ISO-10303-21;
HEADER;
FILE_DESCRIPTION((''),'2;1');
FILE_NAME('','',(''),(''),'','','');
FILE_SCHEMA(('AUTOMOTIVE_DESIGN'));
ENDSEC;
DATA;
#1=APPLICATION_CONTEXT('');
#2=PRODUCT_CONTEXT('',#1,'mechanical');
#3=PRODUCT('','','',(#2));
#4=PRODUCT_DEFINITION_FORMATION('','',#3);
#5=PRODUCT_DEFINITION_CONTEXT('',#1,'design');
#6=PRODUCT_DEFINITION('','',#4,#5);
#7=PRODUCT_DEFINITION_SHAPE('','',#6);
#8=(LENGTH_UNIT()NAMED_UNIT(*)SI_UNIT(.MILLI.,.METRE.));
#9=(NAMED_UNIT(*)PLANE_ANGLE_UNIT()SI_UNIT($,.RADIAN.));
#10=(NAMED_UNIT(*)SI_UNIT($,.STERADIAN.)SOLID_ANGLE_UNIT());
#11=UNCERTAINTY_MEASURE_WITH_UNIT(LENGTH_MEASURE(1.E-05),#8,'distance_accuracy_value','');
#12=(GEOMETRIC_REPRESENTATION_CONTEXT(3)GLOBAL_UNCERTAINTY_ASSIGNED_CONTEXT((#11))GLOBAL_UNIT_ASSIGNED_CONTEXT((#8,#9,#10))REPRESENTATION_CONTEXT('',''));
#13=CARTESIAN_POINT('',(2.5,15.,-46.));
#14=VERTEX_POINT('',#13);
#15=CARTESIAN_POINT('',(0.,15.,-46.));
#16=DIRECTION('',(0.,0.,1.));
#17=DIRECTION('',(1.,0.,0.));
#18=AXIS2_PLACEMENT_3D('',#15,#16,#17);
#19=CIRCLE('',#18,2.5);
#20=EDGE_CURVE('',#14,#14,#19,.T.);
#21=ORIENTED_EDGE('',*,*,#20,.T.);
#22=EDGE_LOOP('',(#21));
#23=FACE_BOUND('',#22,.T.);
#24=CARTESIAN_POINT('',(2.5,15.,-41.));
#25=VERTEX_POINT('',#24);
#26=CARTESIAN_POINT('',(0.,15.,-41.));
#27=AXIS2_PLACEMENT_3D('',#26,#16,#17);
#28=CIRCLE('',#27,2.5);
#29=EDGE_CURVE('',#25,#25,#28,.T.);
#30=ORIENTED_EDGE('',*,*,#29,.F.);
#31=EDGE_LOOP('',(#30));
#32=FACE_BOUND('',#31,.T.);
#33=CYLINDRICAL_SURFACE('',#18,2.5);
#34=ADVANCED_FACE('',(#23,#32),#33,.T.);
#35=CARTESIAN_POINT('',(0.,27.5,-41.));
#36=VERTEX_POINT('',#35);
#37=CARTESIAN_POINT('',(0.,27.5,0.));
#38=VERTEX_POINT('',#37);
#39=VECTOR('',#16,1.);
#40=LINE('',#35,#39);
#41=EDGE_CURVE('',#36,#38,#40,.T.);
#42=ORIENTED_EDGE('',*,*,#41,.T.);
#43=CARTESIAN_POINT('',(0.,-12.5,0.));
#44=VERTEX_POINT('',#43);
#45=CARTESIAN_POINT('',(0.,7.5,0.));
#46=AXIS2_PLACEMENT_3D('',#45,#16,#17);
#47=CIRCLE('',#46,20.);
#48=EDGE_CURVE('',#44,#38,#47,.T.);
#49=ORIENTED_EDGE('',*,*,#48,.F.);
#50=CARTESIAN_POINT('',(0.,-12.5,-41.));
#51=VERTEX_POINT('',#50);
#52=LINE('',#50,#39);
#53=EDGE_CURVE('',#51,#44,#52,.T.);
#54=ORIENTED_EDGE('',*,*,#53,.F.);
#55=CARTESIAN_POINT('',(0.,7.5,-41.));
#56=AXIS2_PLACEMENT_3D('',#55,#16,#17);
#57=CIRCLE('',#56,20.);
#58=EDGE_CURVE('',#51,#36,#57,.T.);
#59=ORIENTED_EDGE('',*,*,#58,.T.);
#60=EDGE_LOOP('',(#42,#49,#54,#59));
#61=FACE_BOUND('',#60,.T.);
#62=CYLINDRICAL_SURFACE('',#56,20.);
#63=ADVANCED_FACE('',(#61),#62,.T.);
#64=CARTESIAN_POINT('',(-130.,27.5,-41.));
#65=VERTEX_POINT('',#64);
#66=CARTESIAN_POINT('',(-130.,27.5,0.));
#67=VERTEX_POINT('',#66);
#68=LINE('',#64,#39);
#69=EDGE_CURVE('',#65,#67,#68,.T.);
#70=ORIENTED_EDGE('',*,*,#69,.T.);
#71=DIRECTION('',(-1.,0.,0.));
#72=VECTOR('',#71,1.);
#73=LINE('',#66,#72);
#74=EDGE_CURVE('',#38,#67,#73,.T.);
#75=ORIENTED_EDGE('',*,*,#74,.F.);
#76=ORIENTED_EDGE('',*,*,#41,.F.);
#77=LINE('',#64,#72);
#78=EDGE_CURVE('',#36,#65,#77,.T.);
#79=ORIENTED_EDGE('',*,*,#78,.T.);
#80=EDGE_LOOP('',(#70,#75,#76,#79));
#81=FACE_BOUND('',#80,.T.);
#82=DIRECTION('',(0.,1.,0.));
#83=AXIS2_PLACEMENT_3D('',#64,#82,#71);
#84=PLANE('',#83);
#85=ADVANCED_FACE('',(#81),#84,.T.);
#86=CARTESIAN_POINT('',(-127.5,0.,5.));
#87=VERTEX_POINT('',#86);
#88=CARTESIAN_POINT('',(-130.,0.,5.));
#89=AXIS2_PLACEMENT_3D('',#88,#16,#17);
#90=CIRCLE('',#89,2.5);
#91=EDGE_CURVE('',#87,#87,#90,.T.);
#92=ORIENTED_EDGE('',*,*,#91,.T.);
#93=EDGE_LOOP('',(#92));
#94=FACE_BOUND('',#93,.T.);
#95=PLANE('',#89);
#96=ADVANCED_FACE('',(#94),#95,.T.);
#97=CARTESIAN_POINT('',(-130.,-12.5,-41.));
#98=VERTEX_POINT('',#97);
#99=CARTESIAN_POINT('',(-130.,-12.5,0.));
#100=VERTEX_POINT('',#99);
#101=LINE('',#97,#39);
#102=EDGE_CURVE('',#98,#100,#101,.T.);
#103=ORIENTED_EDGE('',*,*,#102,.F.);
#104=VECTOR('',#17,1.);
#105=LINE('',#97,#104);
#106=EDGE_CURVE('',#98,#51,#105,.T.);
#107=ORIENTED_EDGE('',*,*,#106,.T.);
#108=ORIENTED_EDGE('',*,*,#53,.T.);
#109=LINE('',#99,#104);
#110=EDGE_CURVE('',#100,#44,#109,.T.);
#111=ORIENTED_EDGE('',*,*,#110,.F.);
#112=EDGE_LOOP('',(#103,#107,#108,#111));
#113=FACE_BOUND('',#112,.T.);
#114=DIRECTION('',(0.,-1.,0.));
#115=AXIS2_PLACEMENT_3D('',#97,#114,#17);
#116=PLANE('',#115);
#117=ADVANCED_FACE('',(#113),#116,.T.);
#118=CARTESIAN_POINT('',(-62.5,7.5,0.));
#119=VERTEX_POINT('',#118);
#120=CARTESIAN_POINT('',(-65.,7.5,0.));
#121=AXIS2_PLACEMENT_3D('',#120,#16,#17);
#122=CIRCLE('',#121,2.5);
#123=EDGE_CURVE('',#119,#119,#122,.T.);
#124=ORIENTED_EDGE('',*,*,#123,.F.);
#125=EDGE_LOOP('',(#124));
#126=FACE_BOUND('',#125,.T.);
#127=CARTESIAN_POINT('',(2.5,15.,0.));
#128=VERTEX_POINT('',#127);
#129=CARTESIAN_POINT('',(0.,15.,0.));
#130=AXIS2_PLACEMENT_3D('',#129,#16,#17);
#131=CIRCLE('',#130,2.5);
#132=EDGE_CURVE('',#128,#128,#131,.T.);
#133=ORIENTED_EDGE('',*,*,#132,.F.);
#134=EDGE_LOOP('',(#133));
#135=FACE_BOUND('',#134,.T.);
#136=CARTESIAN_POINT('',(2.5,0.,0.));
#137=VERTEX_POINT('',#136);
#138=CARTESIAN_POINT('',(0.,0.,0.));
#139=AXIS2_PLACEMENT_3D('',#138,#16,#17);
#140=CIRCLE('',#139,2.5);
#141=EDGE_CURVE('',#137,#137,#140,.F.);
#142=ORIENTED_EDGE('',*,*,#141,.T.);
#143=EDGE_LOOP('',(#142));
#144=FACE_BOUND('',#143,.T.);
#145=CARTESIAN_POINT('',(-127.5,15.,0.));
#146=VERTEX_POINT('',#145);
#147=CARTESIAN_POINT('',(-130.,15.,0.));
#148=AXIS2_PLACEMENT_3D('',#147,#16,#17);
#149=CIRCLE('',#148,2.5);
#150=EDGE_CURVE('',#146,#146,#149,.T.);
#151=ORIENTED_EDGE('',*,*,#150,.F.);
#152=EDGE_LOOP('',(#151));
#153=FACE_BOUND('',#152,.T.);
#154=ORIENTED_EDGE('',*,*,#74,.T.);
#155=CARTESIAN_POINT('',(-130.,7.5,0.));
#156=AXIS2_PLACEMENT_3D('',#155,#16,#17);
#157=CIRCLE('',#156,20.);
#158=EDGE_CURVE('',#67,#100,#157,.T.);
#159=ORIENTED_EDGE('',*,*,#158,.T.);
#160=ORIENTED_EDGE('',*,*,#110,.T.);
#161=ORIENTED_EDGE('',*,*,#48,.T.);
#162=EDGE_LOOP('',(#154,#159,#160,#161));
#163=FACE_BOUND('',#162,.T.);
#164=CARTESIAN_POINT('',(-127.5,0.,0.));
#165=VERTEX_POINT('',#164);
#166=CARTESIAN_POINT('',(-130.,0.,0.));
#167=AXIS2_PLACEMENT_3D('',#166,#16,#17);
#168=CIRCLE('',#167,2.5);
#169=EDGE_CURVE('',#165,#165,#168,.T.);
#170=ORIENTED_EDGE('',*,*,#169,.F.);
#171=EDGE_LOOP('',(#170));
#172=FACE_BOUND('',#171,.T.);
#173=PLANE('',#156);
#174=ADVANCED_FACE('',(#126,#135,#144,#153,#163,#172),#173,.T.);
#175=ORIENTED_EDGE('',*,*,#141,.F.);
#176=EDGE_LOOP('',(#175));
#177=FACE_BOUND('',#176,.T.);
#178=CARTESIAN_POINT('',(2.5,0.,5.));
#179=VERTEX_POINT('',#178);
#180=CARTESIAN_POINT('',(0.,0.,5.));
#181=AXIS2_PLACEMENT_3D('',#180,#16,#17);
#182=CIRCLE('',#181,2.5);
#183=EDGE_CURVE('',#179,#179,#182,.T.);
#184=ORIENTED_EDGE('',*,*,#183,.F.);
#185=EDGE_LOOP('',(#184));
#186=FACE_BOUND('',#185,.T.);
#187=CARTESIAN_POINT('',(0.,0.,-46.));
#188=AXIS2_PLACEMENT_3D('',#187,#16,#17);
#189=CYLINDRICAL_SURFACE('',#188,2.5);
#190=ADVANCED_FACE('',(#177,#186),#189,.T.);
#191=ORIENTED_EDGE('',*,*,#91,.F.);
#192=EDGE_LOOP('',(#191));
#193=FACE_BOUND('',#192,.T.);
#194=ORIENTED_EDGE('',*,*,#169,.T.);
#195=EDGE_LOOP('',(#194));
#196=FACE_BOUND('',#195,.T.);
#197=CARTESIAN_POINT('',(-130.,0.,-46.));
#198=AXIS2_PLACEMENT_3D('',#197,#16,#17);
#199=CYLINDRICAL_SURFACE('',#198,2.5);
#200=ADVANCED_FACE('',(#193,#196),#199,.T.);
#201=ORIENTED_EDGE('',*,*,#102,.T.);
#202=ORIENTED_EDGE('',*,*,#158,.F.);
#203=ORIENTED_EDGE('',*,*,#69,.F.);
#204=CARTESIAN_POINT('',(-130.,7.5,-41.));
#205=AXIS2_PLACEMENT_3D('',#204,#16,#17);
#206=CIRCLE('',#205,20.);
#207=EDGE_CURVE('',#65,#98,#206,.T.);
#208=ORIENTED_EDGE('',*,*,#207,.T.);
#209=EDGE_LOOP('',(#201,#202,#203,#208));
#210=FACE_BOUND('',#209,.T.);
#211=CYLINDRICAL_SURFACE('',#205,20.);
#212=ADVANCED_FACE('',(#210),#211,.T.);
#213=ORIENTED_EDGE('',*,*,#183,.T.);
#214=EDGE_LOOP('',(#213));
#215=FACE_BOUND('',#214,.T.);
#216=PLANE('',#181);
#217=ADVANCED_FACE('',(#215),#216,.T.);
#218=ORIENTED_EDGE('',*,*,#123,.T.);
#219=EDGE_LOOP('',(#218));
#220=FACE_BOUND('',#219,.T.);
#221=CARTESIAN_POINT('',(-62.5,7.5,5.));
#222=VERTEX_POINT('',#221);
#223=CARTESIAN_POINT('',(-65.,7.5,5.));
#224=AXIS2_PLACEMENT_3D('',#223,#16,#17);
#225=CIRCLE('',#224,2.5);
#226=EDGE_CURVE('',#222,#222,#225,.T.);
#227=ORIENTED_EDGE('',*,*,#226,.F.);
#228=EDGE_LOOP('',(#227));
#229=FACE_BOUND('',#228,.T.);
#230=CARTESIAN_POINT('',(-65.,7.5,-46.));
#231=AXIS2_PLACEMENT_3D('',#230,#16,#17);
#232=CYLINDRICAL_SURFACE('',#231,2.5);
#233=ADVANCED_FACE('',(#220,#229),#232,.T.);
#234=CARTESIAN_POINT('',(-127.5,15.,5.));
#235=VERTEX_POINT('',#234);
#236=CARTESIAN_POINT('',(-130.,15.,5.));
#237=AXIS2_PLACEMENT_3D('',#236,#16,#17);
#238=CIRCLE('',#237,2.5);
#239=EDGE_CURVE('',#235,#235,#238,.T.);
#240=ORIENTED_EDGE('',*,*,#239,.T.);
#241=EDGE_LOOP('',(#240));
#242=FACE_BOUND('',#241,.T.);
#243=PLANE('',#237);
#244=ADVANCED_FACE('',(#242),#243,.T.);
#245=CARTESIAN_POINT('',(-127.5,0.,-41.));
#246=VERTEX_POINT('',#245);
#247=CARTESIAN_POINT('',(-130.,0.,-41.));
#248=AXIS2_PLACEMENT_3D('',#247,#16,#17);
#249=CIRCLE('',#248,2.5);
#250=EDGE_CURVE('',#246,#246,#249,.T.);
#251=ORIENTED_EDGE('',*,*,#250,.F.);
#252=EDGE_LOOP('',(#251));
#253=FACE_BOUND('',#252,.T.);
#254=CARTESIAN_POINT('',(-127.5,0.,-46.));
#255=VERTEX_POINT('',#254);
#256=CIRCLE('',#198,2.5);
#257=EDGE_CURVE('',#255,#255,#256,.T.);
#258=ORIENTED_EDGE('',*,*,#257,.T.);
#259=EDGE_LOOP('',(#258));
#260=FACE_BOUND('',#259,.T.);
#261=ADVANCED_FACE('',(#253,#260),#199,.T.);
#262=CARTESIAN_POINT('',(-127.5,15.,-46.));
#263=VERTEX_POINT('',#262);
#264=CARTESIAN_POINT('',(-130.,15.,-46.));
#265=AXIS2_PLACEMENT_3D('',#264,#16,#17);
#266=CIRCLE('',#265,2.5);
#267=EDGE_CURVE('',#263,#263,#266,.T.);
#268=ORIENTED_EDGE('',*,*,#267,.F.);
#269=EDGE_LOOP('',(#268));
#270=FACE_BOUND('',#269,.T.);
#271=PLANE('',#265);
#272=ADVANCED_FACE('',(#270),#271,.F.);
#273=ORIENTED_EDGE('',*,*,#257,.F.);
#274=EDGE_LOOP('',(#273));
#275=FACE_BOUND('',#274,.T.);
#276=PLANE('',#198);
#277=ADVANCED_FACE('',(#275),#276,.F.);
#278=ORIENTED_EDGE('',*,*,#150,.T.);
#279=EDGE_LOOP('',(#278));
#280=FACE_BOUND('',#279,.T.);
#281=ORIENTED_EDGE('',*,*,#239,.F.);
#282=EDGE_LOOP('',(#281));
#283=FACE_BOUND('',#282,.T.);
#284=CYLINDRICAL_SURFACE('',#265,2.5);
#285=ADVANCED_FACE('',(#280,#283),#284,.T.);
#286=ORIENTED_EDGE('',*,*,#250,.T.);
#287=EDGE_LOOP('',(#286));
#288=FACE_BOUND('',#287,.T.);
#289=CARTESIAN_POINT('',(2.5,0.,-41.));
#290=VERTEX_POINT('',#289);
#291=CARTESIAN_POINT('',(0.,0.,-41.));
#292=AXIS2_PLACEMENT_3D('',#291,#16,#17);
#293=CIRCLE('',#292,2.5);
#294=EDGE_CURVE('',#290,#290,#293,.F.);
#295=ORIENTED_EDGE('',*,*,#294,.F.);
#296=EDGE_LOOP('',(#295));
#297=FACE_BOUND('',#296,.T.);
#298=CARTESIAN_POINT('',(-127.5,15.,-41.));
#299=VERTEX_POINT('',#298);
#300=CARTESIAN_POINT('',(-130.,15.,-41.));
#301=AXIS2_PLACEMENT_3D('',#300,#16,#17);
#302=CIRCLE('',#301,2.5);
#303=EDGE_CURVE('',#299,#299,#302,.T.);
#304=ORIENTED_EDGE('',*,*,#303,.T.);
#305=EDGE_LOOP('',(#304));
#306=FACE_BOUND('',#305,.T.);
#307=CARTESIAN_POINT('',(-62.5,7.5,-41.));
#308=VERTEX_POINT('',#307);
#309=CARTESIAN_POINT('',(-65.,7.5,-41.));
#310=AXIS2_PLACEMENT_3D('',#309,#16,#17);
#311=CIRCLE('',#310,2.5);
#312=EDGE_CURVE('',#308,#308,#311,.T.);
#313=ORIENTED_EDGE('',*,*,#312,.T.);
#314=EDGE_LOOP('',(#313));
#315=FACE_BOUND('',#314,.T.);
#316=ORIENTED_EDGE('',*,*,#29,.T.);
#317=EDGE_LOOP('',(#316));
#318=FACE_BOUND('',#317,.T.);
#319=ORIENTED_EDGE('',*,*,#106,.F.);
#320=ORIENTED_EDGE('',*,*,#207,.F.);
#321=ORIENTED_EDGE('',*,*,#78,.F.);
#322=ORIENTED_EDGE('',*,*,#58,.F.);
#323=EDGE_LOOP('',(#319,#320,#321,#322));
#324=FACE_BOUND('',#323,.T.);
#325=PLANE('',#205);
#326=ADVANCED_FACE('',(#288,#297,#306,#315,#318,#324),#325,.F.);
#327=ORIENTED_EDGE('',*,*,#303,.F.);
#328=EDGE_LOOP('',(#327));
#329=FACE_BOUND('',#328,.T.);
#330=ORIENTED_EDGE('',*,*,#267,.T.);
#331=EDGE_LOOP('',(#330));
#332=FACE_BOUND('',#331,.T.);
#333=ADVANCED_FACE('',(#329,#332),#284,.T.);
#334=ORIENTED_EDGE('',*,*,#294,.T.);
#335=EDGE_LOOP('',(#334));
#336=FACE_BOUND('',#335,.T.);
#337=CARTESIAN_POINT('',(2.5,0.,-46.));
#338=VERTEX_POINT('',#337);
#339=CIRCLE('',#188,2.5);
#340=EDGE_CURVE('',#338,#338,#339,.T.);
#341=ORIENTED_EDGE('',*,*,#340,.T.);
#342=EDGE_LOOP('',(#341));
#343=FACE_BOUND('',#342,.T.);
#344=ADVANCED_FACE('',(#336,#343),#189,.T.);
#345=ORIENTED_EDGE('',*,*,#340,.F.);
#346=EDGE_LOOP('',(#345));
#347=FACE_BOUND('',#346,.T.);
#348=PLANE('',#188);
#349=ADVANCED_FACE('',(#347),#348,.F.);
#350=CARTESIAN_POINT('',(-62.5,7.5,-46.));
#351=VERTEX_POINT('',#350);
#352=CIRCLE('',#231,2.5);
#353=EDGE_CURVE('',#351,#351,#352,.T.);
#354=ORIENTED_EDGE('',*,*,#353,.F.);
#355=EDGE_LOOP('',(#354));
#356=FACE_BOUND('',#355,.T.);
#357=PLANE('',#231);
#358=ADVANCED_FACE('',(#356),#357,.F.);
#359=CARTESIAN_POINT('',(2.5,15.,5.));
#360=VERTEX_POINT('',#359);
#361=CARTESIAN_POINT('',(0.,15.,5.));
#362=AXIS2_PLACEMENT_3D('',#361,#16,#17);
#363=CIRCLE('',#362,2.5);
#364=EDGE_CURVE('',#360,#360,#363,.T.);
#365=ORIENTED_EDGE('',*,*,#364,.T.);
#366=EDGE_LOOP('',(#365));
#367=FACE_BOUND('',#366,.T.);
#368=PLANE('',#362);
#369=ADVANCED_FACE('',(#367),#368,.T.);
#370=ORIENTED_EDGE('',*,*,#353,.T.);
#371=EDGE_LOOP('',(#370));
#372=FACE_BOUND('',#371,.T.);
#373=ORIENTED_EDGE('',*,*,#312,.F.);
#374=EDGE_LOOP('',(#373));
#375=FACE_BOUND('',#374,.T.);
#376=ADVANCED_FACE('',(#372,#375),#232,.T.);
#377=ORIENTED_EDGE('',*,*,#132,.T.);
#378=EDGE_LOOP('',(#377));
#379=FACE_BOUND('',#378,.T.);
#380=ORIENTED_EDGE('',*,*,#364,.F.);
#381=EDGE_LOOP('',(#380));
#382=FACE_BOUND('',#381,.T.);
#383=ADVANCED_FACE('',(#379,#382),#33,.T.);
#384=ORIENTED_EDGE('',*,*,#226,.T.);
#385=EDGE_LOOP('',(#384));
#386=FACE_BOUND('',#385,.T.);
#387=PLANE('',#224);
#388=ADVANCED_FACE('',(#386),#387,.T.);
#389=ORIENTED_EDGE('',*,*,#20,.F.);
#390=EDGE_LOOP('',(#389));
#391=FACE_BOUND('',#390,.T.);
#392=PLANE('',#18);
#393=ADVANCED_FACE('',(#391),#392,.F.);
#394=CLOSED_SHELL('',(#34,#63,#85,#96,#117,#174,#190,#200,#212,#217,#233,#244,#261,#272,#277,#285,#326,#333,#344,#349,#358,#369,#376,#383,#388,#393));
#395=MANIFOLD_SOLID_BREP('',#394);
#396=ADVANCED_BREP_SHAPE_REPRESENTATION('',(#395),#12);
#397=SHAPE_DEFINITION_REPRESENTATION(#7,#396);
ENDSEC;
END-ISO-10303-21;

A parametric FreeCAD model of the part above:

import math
import FreeCAD as App
import Part
import Sketcher
from FreeCAD import Vector

doc = App.newDocument("Part")
body = doc.addObject("PartDesign::Body", "Body")

# Sketch on XY plane
sketch1 = doc.addObject("Sketcher::SketchObject", "Sketch")
body.addObject(sketch1)
sketch1.AttachmentSupport = (doc.XY_Plane, [""])
sketch1.MapMode = "FlatFace"
sketch1.addGeometry(Part.Circle(Vector(0, 0, 0), Vector(0, 0, 1), 2.5), False)
sketch1.addConstraint(Sketcher.Constraint("Coincident", 0, 3, -1, 1))
sketch1.addConstraint(Sketcher.Constraint("Diameter", 0, 5.0))
pad1 = doc.addObject("PartDesign::Pad", "Pad")
body.addObject(pad1)
pad1.Profile = sketch1
pad1.Type = "TwoLengths"
pad1.Length = 5
pad1.Length2 = 46
body2 = doc.addObject("PartDesign::Body", "Body001")

# Sketch on XY plane
sketch2 = doc.addObject("Sketcher::SketchObject", "Sketch001")
body2.addObject(sketch2)
sketch2.AttachmentSupport = (doc.getObject("XY_Plane001"), [""])
sketch2.MapMode = "FlatFace"
sketch2.addGeometry(Part.Circle(Vector(0, 15, 0), Vector(0, 0, 1), 2.5), False)
sketch2.addConstraint(Sketcher.Constraint("PointOnObject", 0, 3, -2))
sketch2.addConstraint(Sketcher.Constraint("Diameter", 0, 5.0))
sketch2.addConstraint(Sketcher.Constraint("DistanceY", -1, 1, 0, 3, 15.0))
pad2 = doc.addObject("PartDesign::Pad", "Pad001")
body2.addObject(pad2)
pad2.Profile = sketch2
pad2.Type = "TwoLengths"
pad2.Length = 5
pad2.Length2 = 46
body3 = doc.addObject("PartDesign::Body", "Body002")

# Sketch on XY plane
sketch3 = doc.addObject("Sketcher::SketchObject", "Sketch002")
body3.addObject(sketch3)
sketch3.AttachmentSupport = (doc.getObject("XY_Plane002"), [""])
sketch3.MapMode = "FlatFace"
sketch3.addGeometry(Part.Circle(Vector(-130, 15, 0), Vector(0, 0, 1), 2.5), False)
sketch3.addConstraint(Sketcher.Constraint("Diameter", 0, 5.0))
sketch3.addConstraint(Sketcher.Constraint("DistanceX", 0, 3, -1, 1, 130.0))
sketch3.addConstraint(Sketcher.Constraint("DistanceY", -1, 1, 0, 3, 15.0))
pad3 = doc.addObject("PartDesign::Pad", "Pad002")
body3.addObject(pad3)
pad3.Profile = sketch3
pad3.Type = "TwoLengths"
pad3.Length = 5
pad3.Length2 = 46
body4 = doc.addObject("PartDesign::Body", "Body003")

# Sketch on XY plane
sketch4 = doc.addObject("Sketcher::SketchObject", "Sketch003")
body4.addObject(sketch4)
sketch4.AttachmentSupport = (doc.getObject("XY_Plane003"), [""])
sketch4.MapMode = "FlatFace"
sketch4.addGeometry(Part.Circle(Vector(-130, 0, 0), Vector(0, 0, 1), 2.5), False)
sketch4.addConstraint(Sketcher.Constraint("PointOnObject", 0, 3, -1))
sketch4.addConstraint(Sketcher.Constraint("Diameter", 0, 5.0))
sketch4.addConstraint(Sketcher.Constraint("DistanceX", 0, 3, -1, 1, 130.0))
pad4 = doc.addObject("PartDesign::Pad", "Pad003")
body4.addObject(pad4)
pad4.Profile = sketch4
pad4.Type = "TwoLengths"
pad4.Length = 5
pad4.Length2 = 46
body5 = doc.addObject("PartDesign::Body", "Body004")

# Sketch on XY plane
sketch5 = doc.addObject("Sketcher::SketchObject", "Sketch004")
body5.addObject(sketch5)
sketch5.AttachmentSupport = (doc.getObject("XY_Plane004"), [""])
sketch5.MapMode = "FlatFace"
sketch5.addGeometry(Part.Circle(Vector(-65, 7.5, 0), Vector(0, 0, 1), 2.5), False)
sketch5.addConstraint(Sketcher.Constraint("Diameter", 0, 5.0))
sketch5.addConstraint(Sketcher.Constraint("DistanceX", 0, 3, -1, 1, 65.0))
sketch5.addConstraint(Sketcher.Constraint("DistanceY", -1, 1, 0, 3, 7.5))
pad5 = doc.addObject("PartDesign::Pad", "Pad004")
body5.addObject(pad5)
pad5.Profile = sketch5
pad5.Type = "TwoLengths"
pad5.Length = 5
pad5.Length2 = 46
body.AllowCompound = True
doc.recompute()

boolean = doc.addObject("PartDesign::Boolean", "Boolean")
body.addObject(boolean)
boolean.Type = "Fuse"
boolean.addObjects([body2])
doc.recompute()

boolean2 = doc.addObject("PartDesign::Boolean", "Boolean001")
body.addObject(boolean2)
boolean2.Type = "Fuse"
boolean2.addObjects([body3])
doc.recompute()

boolean3 = doc.addObject("PartDesign::Boolean", "Boolean002")
body.addObject(boolean3)
boolean3.Type = "Fuse"
boolean3.addObjects([body4])
doc.recompute()

boolean4 = doc.addObject("PartDesign::Boolean", "Boolean003")
body.addObject(boolean4)
boolean4.Type = "Fuse"
boolean4.addObjects([body5])

# Sketch on XY plane
sketch6 = doc.addObject("Sketcher::SketchObject", "Sketch005")
body.addObject(sketch6)
sketch6.AttachmentSupport = (doc.XY_Plane, [""])
sketch6.MapMode = "FlatFace"
sketch6.addGeometry(Part.LineSegment(Vector(0, 28, 0), Vector(-130, 28, 0)), False)
sketch6.addGeometry(Part.ArcOfCircle(Part.Circle(Vector(-130, 8, 0), Vector(0, 0, 1), 20), math.radians(90), math.radians(270)), False)
sketch6.addGeometry(Part.LineSegment(Vector(-130, -12, 0), Vector(0, -12, 0)), False)
sketch6.addGeometry(Part.ArcOfCircle(Part.Circle(Vector(0, 8, 0), Vector(0, 0, 1), 20), math.radians(-90), math.radians(90)), False)
sketch6.addConstraint(Sketcher.Constraint("Tangent", 0, 2, 1, 1))
sketch6.addConstraint(Sketcher.Constraint("Tangent", 1, 2, 2, 1))
sketch6.addConstraint(Sketcher.Constraint("Tangent", 2, 2, 3, 1))
sketch6.addConstraint(Sketcher.Constraint("Tangent", 3, 2, 0, 1))
sketch6.addConstraint(Sketcher.Constraint("Horizontal", 0))
sketch6.addConstraint(Sketcher.Constraint("Horizontal", 2))
sketch6.addConstraint(Sketcher.Constraint("PointOnObject", 3, 3, -2))
sketch6.addConstraint(Sketcher.Constraint("Radius", 1, 20.0))
sketch6.addConstraint(Sketcher.Constraint("DistanceX", 0, 2, 0, 1, 130.0))
sketch6.addConstraint(Sketcher.Constraint("DistanceY", -1, 1, 1, 3, 7.5))
pad6 = doc.addObject("PartDesign::Pad", "Pad005")
body.addObject(pad6)
pad6.Profile = sketch6
pad6.Length = 41
pad6.Reversed = True

doc.recompute()
